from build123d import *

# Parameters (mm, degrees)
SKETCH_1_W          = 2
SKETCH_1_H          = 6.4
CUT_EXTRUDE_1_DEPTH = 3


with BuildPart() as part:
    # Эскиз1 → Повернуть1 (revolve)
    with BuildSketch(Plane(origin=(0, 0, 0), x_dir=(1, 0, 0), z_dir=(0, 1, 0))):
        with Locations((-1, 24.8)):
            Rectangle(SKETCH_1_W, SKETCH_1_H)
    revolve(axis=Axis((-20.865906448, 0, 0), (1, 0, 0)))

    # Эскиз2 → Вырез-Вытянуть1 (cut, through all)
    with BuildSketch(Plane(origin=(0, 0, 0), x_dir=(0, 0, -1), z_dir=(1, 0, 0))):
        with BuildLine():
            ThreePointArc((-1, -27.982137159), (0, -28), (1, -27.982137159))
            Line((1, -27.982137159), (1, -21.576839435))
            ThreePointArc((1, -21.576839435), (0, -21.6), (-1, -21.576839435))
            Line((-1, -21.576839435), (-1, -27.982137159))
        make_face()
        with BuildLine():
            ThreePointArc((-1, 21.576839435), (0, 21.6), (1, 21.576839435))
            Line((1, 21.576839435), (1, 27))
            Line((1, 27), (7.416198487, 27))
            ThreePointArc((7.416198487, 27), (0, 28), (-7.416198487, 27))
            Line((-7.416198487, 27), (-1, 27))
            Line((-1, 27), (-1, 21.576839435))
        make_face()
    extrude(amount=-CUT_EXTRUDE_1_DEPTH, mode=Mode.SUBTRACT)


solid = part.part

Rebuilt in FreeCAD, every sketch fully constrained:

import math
import FreeCAD as App
import Part
import Sketcher

V = App.Vector

doc = App.newDocument("Part")
params = doc.addObject("Spreadsheet::Sheet", "Params")
for row, (alias, value) in enumerate([
    ("sketch1_width", "2 mm"),
    ("sketch1_height", "6.4 mm"),
    ("revolution_angle", "360 deg"),
    ("sketch2_radius", "28 mm"),
    ("sketch2_radius2", "21.6 mm"),
], start=1):
    params.set(f"A{row}", alias)
    params.set(f"B{row}", "=" + value)
    params.setAlias(f"B{row}", alias)

body = doc.addObject("PartDesign::Body", "Body")
body.AllowCompound = True

# Sketch on XZ plane
sketch1 = doc.addObject("Sketcher::SketchObject", "Sketch")
body.addObject(sketch1)
sketch1.AttachmentSupport = (doc.XZ_Plane, [""])
sketch1.MapMode = "FlatFace"
sketch1.addGeometry([
    Part.LineSegment(V(-2, -28, 0), V(-2, -21.6, 0)),
    Part.LineSegment(V(-2, -21.6, 0), V(0, -21.6, 0)),
    Part.LineSegment(V(0, -21.6, 0), V(0, -28, 0)),
    Part.LineSegment(V(0, -28, 0), V(-2, -28, 0)),
], False)
sketch1.addConstraint([
    Sketcher.Constraint("Coincident", 0, 2, 1, 1),
    Sketcher.Constraint("Coincident", 1, 2, 2, 1),
    Sketcher.Constraint("Coincident", 2, 2, 3, 1),
    Sketcher.Constraint("Coincident", 3, 2, 0, 1),
    Sketcher.Constraint("Vertical", 0),
    Sketcher.Constraint("Horizontal", 1),
    Sketcher.Constraint("Vertical", 2),
    Sketcher.Constraint("Horizontal", 3),
    Sketcher.Constraint("PointOnObject", 1, 2, -2),
    Sketcher.Constraint("DistanceX", 1, 1, 1, 2, 2.0),
    Sketcher.Constraint("DistanceY", 0, 1, 0, 2, 6.4),
    Sketcher.Constraint("DistanceY", 2, 2, -1, 1, 28.0),
])
sketch1.setExpression("Constraints[9]", "Params.sketch1_width")
sketch1.setExpression("Constraints[10]", "Params.sketch1_height")
revolution = doc.addObject("PartDesign::Revolution", "Revolution")
body.addObject(revolution)
revolution.Profile = sketch1
revolution.ReferenceAxis = (sketch1, ["H_Axis"])
revolution.setExpression("Angle", "Params.revolution_angle")

# Sketch on YZ plane
sketch2 = doc.addObject("Sketcher::SketchObject", "Sketch001")
body.addObject(sketch2)
sketch2.AttachmentSupport = (doc.YZ_Plane, [""])
sketch2.MapMode = "FlatFace"
sketch2.addGeometry([
    Part.ArcOfCircle(Part.Circle(V(0, 0, 0), V(0, 0, 1), 28), math.radians(177.953287), math.radians(182.046713)),  # 0
    Part.LineSegment(V(-27.982137, -1, 0), V(-21.576839, -1, 0)),  # 1
    Part.ArcOfCircle(Part.Circle(V(0, 0, 0), V(0, 0, 1), 21.6), math.radians(177.346469), math.radians(182.653531)),  # 2
    Part.LineSegment(V(-21.576839, 1, 0), V(-27.982137, 1, 0)),  # 3
    Part.ArcOfCircle(Part.Circle(V(0, 0, 0), V(0, 0, 1), 21.6), math.radians(-2.653531), math.radians(2.653531)),  # 4
    Part.LineSegment(V(21.576839, -1, 0), V(27, -1, 0)),  # 5
    Part.LineSegment(V(27, -1, 0), V(27, -7.416198, 0)),  # 6
    Part.ArcOfCircle(Part.Circle(V(0, 0, 0), V(0, 0, 1), 28), math.radians(-15.358886), math.radians(15.358886)),  # 7
    Part.LineSegment(V(27, 7.416198, 0), V(27, 1, 0)),  # 8
    Part.LineSegment(V(27, 1, 0), V(21.576839, 1, 0)),  # 9
], False)
sketch2.addConstraint([
    Sketcher.Constraint("Coincident", 0, 2, 1, 1),
    Sketcher.Constraint("Coincident", 1, 2, 2, 2),
    Sketcher.Constraint("Coincident", 2, 1, 3, 1),
    Sketcher.Constraint("Coincident", 3, 2, 0, 1),
    Sketcher.Constraint("Coincident", 4, 1, 5, 1),
    Sketcher.Constraint("Coincident", 5, 2, 6, 1),
    Sketcher.Constraint("Coincident", 6, 2, 7, 1),
    Sketcher.Constraint("Coincident", 7, 2, 8, 1),
    Sketcher.Constraint("Coincident", 8, 2, 9, 1),
    Sketcher.Constraint("Coincident", 9, 2, 4, 2),
    Sketcher.Constraint("Horizontal", 1),
    Sketcher.Constraint("Horizontal", 3),
    Sketcher.Constraint("Horizontal", 5),
    Sketcher.Constraint("Vertical", 6),
    Sketcher.Constraint("Vertical", 8),
    Sketcher.Constraint("Horizontal", 9),
    Sketcher.Constraint("Coincident", 0, 3, -1, 1),
    Sketcher.Constraint("Coincident", 2, 3, -1, 1),
    Sketcher.Constraint("Coincident", 4, 3, -1, 1),
    Sketcher.Constraint("Coincident", 7, 3, -1, 1),
    Sketcher.Constraint("Equal", 2, 4),
    Sketcher.Constraint("Equal", 0, 7),
    Sketcher.Constraint("Symmetric", 5, 2, 8, 2, -1),
    Sketcher.Constraint("Horizontal", 1, 2, 4, 1),
    Sketcher.Constraint("Horizontal", 3, 2, 8, 2),
    Sketcher.Constraint("Radius", 0, 28.0),
    Sketcher.Constraint("Radius", 2, 21.6),
    Sketcher.Constraint("DistanceY", 0, 2, -1, 1, 1.0),
    Sketcher.Constraint("DistanceX", -1, 1, 5, 2, 27.0),
])
sketch2.setExpression("Constraints[25]", "Params.sketch2_radius")
sketch2.setExpression("Constraints[26]", "Params.sketch2_radius2")
pocket1 = doc.addObject("PartDesign::Pocket", "Pocket")
body.addObject(pocket1)
pocket1.Profile = sketch2
pocket1.Type = "ThroughAll"

doc.recompute()
